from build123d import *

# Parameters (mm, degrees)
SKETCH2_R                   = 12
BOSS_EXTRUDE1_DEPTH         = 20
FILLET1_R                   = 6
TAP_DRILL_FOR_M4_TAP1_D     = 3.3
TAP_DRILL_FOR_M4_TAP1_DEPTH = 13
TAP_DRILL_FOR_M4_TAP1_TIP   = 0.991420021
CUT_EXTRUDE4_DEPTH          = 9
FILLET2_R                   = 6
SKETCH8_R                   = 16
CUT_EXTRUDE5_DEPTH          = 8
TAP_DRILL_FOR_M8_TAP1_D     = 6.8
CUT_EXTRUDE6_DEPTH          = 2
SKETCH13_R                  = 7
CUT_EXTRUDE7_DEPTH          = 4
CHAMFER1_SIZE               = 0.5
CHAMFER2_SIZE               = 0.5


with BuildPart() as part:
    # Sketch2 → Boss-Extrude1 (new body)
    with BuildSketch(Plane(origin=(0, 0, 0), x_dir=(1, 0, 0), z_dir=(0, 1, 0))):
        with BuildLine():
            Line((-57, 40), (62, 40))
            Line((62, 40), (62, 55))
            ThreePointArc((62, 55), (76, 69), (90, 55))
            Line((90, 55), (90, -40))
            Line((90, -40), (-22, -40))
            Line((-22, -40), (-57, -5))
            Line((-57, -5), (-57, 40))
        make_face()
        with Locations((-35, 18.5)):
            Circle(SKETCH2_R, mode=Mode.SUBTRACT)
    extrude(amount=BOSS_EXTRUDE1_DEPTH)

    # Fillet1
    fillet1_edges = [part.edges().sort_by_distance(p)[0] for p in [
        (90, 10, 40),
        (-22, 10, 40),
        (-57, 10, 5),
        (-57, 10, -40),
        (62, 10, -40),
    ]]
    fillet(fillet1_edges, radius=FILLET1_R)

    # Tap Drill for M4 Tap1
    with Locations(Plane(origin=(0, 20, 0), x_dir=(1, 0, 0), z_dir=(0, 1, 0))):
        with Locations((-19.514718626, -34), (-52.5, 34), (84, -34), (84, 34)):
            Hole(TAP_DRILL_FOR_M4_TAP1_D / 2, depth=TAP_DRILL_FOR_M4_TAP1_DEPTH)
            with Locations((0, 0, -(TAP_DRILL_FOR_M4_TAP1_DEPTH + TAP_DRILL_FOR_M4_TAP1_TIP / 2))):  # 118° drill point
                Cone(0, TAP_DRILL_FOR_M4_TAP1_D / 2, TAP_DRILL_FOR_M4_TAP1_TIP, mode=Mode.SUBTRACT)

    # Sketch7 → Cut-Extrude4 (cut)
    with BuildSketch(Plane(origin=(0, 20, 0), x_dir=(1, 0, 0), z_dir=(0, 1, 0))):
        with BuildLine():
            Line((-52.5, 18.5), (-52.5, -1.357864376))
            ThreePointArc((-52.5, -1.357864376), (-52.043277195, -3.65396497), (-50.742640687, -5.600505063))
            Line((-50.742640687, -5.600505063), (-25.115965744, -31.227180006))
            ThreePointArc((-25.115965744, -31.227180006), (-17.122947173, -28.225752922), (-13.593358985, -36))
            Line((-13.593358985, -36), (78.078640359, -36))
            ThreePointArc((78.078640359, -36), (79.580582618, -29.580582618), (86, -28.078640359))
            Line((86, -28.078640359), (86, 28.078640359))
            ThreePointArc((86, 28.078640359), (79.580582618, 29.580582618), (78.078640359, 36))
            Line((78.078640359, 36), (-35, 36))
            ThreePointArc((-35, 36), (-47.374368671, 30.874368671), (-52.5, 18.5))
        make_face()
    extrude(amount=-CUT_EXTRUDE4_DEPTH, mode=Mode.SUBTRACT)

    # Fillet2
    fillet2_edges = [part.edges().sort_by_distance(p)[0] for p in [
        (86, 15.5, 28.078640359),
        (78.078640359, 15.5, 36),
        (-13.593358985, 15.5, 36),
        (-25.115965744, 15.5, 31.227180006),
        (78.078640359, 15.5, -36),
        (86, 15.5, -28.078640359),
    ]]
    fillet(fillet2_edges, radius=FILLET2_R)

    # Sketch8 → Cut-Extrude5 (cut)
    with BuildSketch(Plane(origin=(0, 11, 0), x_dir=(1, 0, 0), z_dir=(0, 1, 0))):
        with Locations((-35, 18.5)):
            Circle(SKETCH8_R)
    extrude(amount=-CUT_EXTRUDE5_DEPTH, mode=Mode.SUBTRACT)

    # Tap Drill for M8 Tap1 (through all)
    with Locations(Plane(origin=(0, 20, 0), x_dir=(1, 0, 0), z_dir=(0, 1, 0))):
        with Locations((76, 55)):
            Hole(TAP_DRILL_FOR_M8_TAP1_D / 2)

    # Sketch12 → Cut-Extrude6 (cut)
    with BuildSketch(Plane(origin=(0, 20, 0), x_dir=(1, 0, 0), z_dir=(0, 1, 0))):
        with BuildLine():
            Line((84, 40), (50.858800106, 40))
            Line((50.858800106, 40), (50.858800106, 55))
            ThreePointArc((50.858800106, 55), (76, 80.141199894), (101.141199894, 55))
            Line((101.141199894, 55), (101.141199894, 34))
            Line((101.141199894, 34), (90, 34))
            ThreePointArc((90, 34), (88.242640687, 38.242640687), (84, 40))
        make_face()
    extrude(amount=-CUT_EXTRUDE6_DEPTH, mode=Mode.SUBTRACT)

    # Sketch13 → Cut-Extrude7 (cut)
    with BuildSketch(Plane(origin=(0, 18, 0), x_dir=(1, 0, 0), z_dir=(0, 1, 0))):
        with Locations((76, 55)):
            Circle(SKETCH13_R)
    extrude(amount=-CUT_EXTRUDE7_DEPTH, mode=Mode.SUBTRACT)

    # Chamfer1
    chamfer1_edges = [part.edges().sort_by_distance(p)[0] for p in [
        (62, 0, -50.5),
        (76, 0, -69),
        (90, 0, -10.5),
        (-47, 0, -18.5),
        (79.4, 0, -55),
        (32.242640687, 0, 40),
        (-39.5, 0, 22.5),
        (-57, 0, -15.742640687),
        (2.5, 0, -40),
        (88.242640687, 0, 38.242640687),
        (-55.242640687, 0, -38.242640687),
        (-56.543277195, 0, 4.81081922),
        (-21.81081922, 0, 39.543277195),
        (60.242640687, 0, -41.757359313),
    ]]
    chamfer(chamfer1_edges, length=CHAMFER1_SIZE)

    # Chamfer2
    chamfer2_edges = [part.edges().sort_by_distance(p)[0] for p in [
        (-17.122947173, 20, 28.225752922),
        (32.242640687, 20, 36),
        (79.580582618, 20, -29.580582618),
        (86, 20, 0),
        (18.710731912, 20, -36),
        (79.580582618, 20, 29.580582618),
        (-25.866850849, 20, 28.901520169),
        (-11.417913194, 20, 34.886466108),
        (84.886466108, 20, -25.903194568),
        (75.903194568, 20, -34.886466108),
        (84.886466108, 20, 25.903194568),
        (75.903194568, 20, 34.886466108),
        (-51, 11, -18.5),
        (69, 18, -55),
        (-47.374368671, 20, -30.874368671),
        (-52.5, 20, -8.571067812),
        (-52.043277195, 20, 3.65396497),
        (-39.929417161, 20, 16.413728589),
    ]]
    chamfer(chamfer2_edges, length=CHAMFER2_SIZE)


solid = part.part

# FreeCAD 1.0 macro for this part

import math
import FreeCAD as App
import Part
import Sketcher

V = App.Vector
Q = App.Units.Quantity


def edges_at(feature, points):
    """Names of the edges that pass closest to the given points."""
    edges = feature.Shape.Edges
    near = lambda p: min(range(len(edges)), key=lambda i: edges[i].distToShape(Part.Vertex(*p))[0])
    return sorted({f"Edge{near(p) + 1}" for p in points})

doc = App.newDocument("Part")
body = doc.addObject("PartDesign::Body", "Body")

# Sketch on XZ plane
sketch1 = body.newObject("Sketcher::SketchObject", "Sketch")
sketch1.AttachmentSupport = (doc.getObject("XZ_Plane"), [""])
sketch1.MapMode = "FlatFace"
sketch1.addGeometry([
    Part.LineSegment(V(62, -40, 0), V(-57, -40, 0)),  # 0
    Part.LineSegment(V(-57, -40, 0), V(-57, 5, 0)),  # 1
    Part.LineSegment(V(-57, 5, 0), V(-22, 40, 0)),  # 2
    Part.LineSegment(V(-22, 40, 0), V(90, 40, 0)),  # 3
    Part.LineSegment(V(90, 40, 0), V(90, -55, 0)),  # 4
    Part.ArcOfCircle(Part.Circle(V(76, -55, 0), V(0, 0, 1), 14), math.radians(180), math.radians(360)),  # 5
    Part.LineSegment(V(62, -55, 0), V(62, -40, 0)),  # 6
    Part.Circle(V(-35, -18, 0), V(0, 0, 1), 12),  # 7
], False)
sketch1.addConstraint([
    Sketcher.Constraint("Coincident", 0, 2, 1, 1),
    Sketcher.Constraint("Coincident", 1, 2, 2, 1),
    Sketcher.Constraint("Coincident", 2, 2, 3, 1),
    Sketcher.Constraint("Coincident", 3, 2, 4, 1),
    Sketcher.Constraint("Tangent", 4, 2, 5, 2),
    Sketcher.Constraint("Tangent", 5, 1, 6, 1),
    Sketcher.Constraint("Coincident", 6, 2, 0, 1),
    Sketcher.Constraint("Horizontal", 0),
    Sketcher.Constraint("Vertical", 1),
    Sketcher.Constraint("Horizontal", 3),
    Sketcher.Constraint("Vertical", 4),
    Sketcher.Constraint("Vertical", 6),
    Sketcher.Constraint("Diameter", 7, Q("24 mm")),
    Sketcher.Constraint("Radius", 5, Q("14 mm")),
    Sketcher.Constraint("DistanceX", 0, 2, 0, 1, Q("119 mm")),
    Sketcher.Constraint("DistanceX", 3, 1, 3, 2, Q("112 mm")),
    Sketcher.Constraint("DistanceY", 1, 1, 1, 2, Q("45 mm")),
    Sketcher.Constraint("DistanceY", 4, 2, 4, 1, Q("95 mm")),
    Sketcher.Constraint("DistanceY", 6, 1, 6, 2, Q("15 mm")),
    Sketcher.Constraint("DistanceX", -1, 1, 5, 3, Q("76 mm")),
    Sketcher.Constraint("DistanceY", 5, 3, -1, 1, Q("55 mm")),
    Sketcher.Constraint("DistanceX", 7, 3, -1, 1, Q("35 mm")),
    Sketcher.Constraint("DistanceY", 7, 3, -1, 1, Q("18.5 mm")),
])
pad1 = body.newObject("PartDesign::Pad", "Pad")
pad1.Profile = sketch1
pad1.Length = 20
pad1.Reversed = True
doc.recompute()

fillet = body.newObject("PartDesign::Fillet", "Fillet")
fillet.Base = (pad1, edges_at(pad1, [
    (90, 10, 40),
    (-22, 10, 40),
    (-57, 10, 5),
    (-57, 10, -40),
    (62, 10, -40),
]))
fillet.Radius = 6

# Sketch on XZ plane
sketch2 = body.newObject("Sketcher::SketchObject", "Sketch001")
sketch2.AttachmentSupport = (doc.getObject("XZ_Plane"), [""])
sketch2.MapMode = "FlatFace"
sketch2.AttachmentOffset = App.Placement(V(0, 0, -20), App.Rotation())
sketch2.addGeometry([
    Part.Circle(V(-19.5, 34, 0), V(0, 0, 1), 1.6),
    Part.Circle(V(-52.5, -34, 0), V(0, 0, 1), 1.6),
    Part.Circle(V(84, 34, 0), V(0, 0, 1), 1.6),
    Part.Circle(V(84, -34, 0), V(0, 0, 1), 1.6),
], False)
sketch2.addConstraint([
    Sketcher.Constraint("Equal", 0, 1),
    Sketcher.Constraint("Equal", 1, 2),
    Sketcher.Constraint("Equal", 2, 3),
    Sketcher.Constraint("Symmetric", 2, 3, 3, 3, -1),
    Sketcher.Constraint("Horizontal", 0, 3, 2, 3),
    Sketcher.Constraint("Horizontal", 1, 3, 3, 3),
    Sketcher.Constraint("Diameter", 0, Q("3.3 mm")),
    Sketcher.Constraint("DistanceY", -1, 1, 0, 3, Q("34 mm")),
    Sketcher.Constraint("DistanceX", -1, 1, 2, 3, Q("84 mm")),
    Sketcher.Constraint("DistanceX", 1, 3, -1, 1, Q("52.5 mm")),
    Sketcher.Constraint("DistanceX", 0, 3, -1, 1, Q("19.514719 mm")),
])
doc.recompute()
hole = body.newObject("PartDesign::Hole", "Hole")
hole.Profile = sketch2
hole.ThreadType = "None"
hole.Diameter = 3.3
hole.DepthType = "Dimension"
hole.Depth = 13
hole.DrillPoint = "Angled"
hole.DrillPointAngle = 118
hole.Reversed = True

# Sketch on XZ plane
sketch3 = body.newObject("Sketcher::SketchObject", "Sketch002")
sketch3.AttachmentSupport = (doc.getObject("XZ_Plane"), [""])
sketch3.MapMode = "FlatFace"
sketch3.AttachmentOffset = App.Placement(V(0, 0, -20), App.Rotation())
sketch3.addGeometry([
    Part.LineSegment(V(-52.5, -18.5, 0), V(-52.5, 1.4, 0)),  # 0
    Part.ArcOfCircle(Part.Circle(V(-46.5, 1.4, 0), V(0, 0, 1), 6), math.radians(135), math.radians(180)),  # 1
    Part.LineSegment(V(-50.7, 5.6, 0), V(-25.1, 31.2, 0)),  # 2
    Part.ArcOfCircle(Part.Circle(V(-19.5, 34, 0), V(0, 0, 1), 6.2), math.radians(-154), math.radians(19)),  # 3
    Part.LineSegment(V(-13.6, 36, 0), V(78.1, 36, 0)),  # 4
    Part.ArcOfCircle(Part.Circle(V(84, 34, 0), V(0, 0, 1), 6.2), math.radians(161), math.radians(289)),  # 5
    Part.LineSegment(V(86, 28.1, 0), V(86, -28.1, 0)),  # 6
    Part.ArcOfCircle(Part.Circle(V(84, -34, 0), V(0, 0, 1), 6.2), math.radians(71), math.radians(199)),  # 7
    Part.LineSegment(V(78.1, -36, 0), V(-35, -36, 0)),  # 8
    Part.ArcOfCircle(Part.Circle(V(-35, -18.5, 0), V(0, 0, 1), 17.5), math.radians(180), math.radians(270)),  # 9
], False)
sketch3.addConstraint([
    Sketcher.Constraint("Tangent", 0, 2, 1, 2),
    Sketcher.Constraint("Tangent", 1, 1, 2, 1),
    Sketcher.Constraint("Coincident", 2, 2, 3, 1),
    Sketcher.Constraint("Coincident", 3, 2, 4, 1),
    Sketcher.Constraint("Coincident", 4, 2, 5, 1),
    Sketcher.Constraint("Coincident", 5, 2, 6, 1),
    Sketcher.Constraint("Coincident", 6, 2, 7, 1),
    Sketcher.Constraint("Coincident", 7, 2, 8, 1),
    Sketcher.Constraint("Tangent", 8, 2, 9, 2),
    Sketcher.Constraint("Tangent", 9, 1, 0, 1),
    Sketcher.Constraint("Vertical", 0),
    Sketcher.Constraint("Horizontal", 4),
    Sketcher.Constraint("Vertical", 6),
    Sketcher.Constraint("Horizontal", 8),
    Sketcher.Constraint("Equal", 3, 5),
    Sketcher.Constraint("Equal", 5, 7),
    Sketcher.Constraint("Symmetric", 5, 3, 7, 3, -1),
    Sketcher.Constraint("Horizontal", 3, 3, 5, 3),
    Sketcher.Constraint("Vertical", 4, 2, 7, 2),
    Sketcher.Constraint("Radius", 1, Q("6 mm")),
    Sketcher.Constraint("Radius", 9, Q("17.5 mm")),
    Sketcher.Constraint("Angle", 2, Q("45 deg")),
    Sketcher.Constraint("Radius", 3, Q("6.25 mm")),
    Sketcher.Constraint("DistanceY", -1, 1, 3, 3, Q("34 mm")),
    Sketcher.Constraint("DistanceX", -1, 1, 5, 3, Q("84 mm")),
    Sketcher.Constraint("DistanceX", 9, 3, -1, 1, Q("35 mm")),
    Sketcher.Constraint("DistanceY", -1, 1, 3, 2, Q("36 mm")),
    Sketcher.Constraint("DistanceX", -1, 1, 5, 2, Q("86 mm")),
    Sketcher.Constraint("DistanceX", 4, 1, 4, 2, Q("91.671999 mm")),
    Sketcher.Constraint("Distance", 2, Q("36.241591 mm")),
])
pocket1 = body.newObject("PartDesign::Pocket", "Pocket")
pocket1.Profile = sketch3
pocket1.Length = 9
pocket1.Reversed = True
doc.recompute()

fillet2 = body.newObject("PartDesign::Fillet", "Fillet001")
fillet2.Base = (pocket1, edges_at(pocket1, [
    (86, 15.5, 28.079),
    (78.079, 15.5, 36),
    (-13.593, 15.5, 36),
    (-25.116, 15.5, 31.227),
    (78.079, 15.5, -36),
    (86, 15.5, -28.079),
]))
fillet2.Radius = 6

# Sketch on XZ plane
sketch4 = body.newObject("Sketcher::SketchObject", "Sketch003")
sketch4.AttachmentSupport = (doc.getObject("XZ_Plane"), [""])
sketch4.MapMode = "FlatFace"
sketch4.AttachmentOffset = App.Placement(V(0, 0, -11), App.Rotation())
sketch4.addGeometry(Part.Circle(V(-35, -18, 0), V(0, 0, 1), 16), False)
sketch4.addConstraint([
    Sketcher.Constraint("Diameter", 0, Q("32 mm")),
    Sketcher.Constraint("DistanceX", 0, 3, -1, 1, Q("35 mm")),
    Sketcher.Constraint("DistanceY", 0, 3, -1, 1, Q("18.5 mm")),
])
pocket2 = body.newObject("PartDesign::Pocket", "Pocket001")
pocket2.Profile = sketch4
pocket2.Length = 8
pocket2.Reversed = True

# Sketch on XZ plane
sketch5 = body.newObject("Sketcher::SketchObject", "Sketch004")
sketch5.AttachmentSupport = (doc.getObject("XZ_Plane"), [""])
sketch5.MapMode = "FlatFace"
sketch5.AttachmentOffset = App.Placement(V(0, 0, -20), App.Rotation())
sketch5.addGeometry(Part.Circle(V(76, -55, 0), V(0, 0, 1), 3.4), False)
sketch5.addConstraint([
    Sketcher.Constraint("Diameter", 0, Q("6.8 mm")),
    Sketcher.Constraint("DistanceX", -1, 1, 0, 3, Q("76 mm")),
    Sketcher.Constraint("DistanceY", 0, 3, -1, 1, Q("55 mm")),
])
doc.recompute()
hole2 = body.newObject("PartDesign::Hole", "Hole001")
hole2.Profile = sketch5
hole2.ThreadType = "None"
hole2.Diameter = 6.8
hole2.DepthType = "ThroughAll"
hole2.Reversed = True

# Sketch on XZ plane
sketch6 = body.newObject("Sketcher::SketchObject", "Sketch005")
sketch6.AttachmentSupport = (doc.getObject("XZ_Plane"), [""])
sketch6.MapMode = "FlatFace"
sketch6.AttachmentOffset = App.Placement(V(0, 0, -20), App.Rotation())
sketch6.addGeometry([
    Part.LineSegment(V(51, -40, 0), V(84, -40, 0)),  # 0
    Part.ArcOfCircle(Part.Circle(V(84, -34, 0), V(0, 0, 1), 6), math.radians(-90), math.radians(0)),  # 1
    Part.LineSegment(V(90, -34, 0), V(101, -34, 0)),  # 2
    Part.LineSegment(V(101, -34, 0), V(101, -55, 0)),  # 3
    Part.ArcOfCircle(Part.Circle(V(76, -55, 0), V(0, 0, 1), 25), math.radians(180), math.radians(360)),  # 4
    Part.LineSegment(V(51, -55, 0), V(51, -40, 0)),  # 5
], False)
sketch6.addConstraint([
    Sketcher.Constraint("Tangent", 0, 2, 1, 1),
    Sketcher.Constraint("Coincident", 1, 2, 2, 1),
    Sketcher.Constraint("Coincident", 2, 2, 3, 1),
    Sketcher.Constraint("Tangent", 3, 2, 4, 2),
    Sketcher.Constraint("Tangent", 4, 1, 5, 1),
    Sketcher.Constraint("Coincident", 5, 2, 0, 1),
    Sketcher.Constraint("Horizontal", 0),
    Sketcher.Constraint("Horizontal", 2),
    Sketcher.Constraint("Vertical", 3),
    Sketcher.Constraint("Vertical", 5),
    Sketcher.Constraint("Radius", 1, Q("6 mm")),
    Sketcher.Constraint("DistanceY", 3, 2, 3, 1, Q("21 mm")),
    Sketcher.Constraint("DistanceY", 5, 1, 5, 2, Q("15 mm")),
    Sketcher.Constraint("DistanceX", -1, 1, 1, 3, Q("84 mm")),
    Sketcher.Constraint("DistanceY", 1, 3, -1, 1, Q("34 mm")),
    Sketcher.Constraint("DistanceX", -1, 1, 4, 3, Q("76 mm")),
    Sketcher.Constraint("Radius", 4, Q("25.1412 mm")),
])
pocket3 = body.newObject("PartDesign::Pocket", "Pocket002")
pocket3.Profile = sketch6
pocket3.Length = 2
pocket3.Reversed = True

# Sketch on XZ plane
sketch7 = body.newObject("Sketcher::SketchObject", "Sketch006")
sketch7.AttachmentSupport = (doc.getObject("XZ_Plane"), [""])
sketch7.MapMode = "FlatFace"
sketch7.AttachmentOffset = App.Placement(V(0, 0, -18), App.Rotation())
sketch7.addGeometry(Part.Circle(V(76, -55, 0), V(0, 0, 1), 7), False)
sketch7.addConstraint([
    Sketcher.Constraint("Diameter", 0, Q("14 mm")),
    Sketcher.Constraint("DistanceX", -1, 1, 0, 3, Q("76 mm")),
    Sketcher.Constraint("DistanceY", 0, 3, -1, 1, Q("55 mm")),
])
pocket4 = body.newObject("PartDesign::Pocket", "Pocket003")
pocket4.Profile = sketch7
pocket4.Length = 4
pocket4.Reversed = True
doc.recompute()

chamfer = body.newObject("PartDesign::Chamfer", "Chamfer")
chamfer.Base = (pocket4, edges_at(pocket4, [
    (62, 0, -50.5),
    (76, 0, -69),
    (90, 0, -10.5),
    (-47, 0, -18.5),
    (79.4, 0, -55),
    (32.243, 0, 40),
    (-39.5, 0, 22.5),
    (-57, 0, -15.743),
    (2.5, 0, -40),
    (88.243, 0, 38.243),
    (-55.243, 0, -38.243),
    (-56.543, 0, 4.811),
    (-21.811, 0, 39.543),
    (60.243, 0, -41.757),
]))
chamfer.Size = 0.5
doc.recompute()

chamfer2 = body.newObject("PartDesign::Chamfer", "Chamfer001")
chamfer2.Base = (chamfer, edges_at(chamfer, [
    (-17.123, 20, 28.226),
    (32.243, 20, 36),
    (79.581, 20, -29.581),
    (86, 20, 0),
    (18.711, 20, -36),
    (79.581, 20, 29.581),
    (-25.867, 20, 28.902),
    (-11.418, 20, 34.886),
    (84.886, 20, -25.903),
    (75.903, 20, -34.886),
    (84.886, 20, 25.903),
    (75.903, 20, 34.886),
    (-51, 11, -18.5),
    (69, 18, -55),
    (-47.374, 20, -30.874),
    (-52.5, 20, -8.571),
    (-52.043, 20, 3.654),
    (-39.929, 20, 16.414),
]))
chamfer2.Size = 0.5

doc.recompute()
